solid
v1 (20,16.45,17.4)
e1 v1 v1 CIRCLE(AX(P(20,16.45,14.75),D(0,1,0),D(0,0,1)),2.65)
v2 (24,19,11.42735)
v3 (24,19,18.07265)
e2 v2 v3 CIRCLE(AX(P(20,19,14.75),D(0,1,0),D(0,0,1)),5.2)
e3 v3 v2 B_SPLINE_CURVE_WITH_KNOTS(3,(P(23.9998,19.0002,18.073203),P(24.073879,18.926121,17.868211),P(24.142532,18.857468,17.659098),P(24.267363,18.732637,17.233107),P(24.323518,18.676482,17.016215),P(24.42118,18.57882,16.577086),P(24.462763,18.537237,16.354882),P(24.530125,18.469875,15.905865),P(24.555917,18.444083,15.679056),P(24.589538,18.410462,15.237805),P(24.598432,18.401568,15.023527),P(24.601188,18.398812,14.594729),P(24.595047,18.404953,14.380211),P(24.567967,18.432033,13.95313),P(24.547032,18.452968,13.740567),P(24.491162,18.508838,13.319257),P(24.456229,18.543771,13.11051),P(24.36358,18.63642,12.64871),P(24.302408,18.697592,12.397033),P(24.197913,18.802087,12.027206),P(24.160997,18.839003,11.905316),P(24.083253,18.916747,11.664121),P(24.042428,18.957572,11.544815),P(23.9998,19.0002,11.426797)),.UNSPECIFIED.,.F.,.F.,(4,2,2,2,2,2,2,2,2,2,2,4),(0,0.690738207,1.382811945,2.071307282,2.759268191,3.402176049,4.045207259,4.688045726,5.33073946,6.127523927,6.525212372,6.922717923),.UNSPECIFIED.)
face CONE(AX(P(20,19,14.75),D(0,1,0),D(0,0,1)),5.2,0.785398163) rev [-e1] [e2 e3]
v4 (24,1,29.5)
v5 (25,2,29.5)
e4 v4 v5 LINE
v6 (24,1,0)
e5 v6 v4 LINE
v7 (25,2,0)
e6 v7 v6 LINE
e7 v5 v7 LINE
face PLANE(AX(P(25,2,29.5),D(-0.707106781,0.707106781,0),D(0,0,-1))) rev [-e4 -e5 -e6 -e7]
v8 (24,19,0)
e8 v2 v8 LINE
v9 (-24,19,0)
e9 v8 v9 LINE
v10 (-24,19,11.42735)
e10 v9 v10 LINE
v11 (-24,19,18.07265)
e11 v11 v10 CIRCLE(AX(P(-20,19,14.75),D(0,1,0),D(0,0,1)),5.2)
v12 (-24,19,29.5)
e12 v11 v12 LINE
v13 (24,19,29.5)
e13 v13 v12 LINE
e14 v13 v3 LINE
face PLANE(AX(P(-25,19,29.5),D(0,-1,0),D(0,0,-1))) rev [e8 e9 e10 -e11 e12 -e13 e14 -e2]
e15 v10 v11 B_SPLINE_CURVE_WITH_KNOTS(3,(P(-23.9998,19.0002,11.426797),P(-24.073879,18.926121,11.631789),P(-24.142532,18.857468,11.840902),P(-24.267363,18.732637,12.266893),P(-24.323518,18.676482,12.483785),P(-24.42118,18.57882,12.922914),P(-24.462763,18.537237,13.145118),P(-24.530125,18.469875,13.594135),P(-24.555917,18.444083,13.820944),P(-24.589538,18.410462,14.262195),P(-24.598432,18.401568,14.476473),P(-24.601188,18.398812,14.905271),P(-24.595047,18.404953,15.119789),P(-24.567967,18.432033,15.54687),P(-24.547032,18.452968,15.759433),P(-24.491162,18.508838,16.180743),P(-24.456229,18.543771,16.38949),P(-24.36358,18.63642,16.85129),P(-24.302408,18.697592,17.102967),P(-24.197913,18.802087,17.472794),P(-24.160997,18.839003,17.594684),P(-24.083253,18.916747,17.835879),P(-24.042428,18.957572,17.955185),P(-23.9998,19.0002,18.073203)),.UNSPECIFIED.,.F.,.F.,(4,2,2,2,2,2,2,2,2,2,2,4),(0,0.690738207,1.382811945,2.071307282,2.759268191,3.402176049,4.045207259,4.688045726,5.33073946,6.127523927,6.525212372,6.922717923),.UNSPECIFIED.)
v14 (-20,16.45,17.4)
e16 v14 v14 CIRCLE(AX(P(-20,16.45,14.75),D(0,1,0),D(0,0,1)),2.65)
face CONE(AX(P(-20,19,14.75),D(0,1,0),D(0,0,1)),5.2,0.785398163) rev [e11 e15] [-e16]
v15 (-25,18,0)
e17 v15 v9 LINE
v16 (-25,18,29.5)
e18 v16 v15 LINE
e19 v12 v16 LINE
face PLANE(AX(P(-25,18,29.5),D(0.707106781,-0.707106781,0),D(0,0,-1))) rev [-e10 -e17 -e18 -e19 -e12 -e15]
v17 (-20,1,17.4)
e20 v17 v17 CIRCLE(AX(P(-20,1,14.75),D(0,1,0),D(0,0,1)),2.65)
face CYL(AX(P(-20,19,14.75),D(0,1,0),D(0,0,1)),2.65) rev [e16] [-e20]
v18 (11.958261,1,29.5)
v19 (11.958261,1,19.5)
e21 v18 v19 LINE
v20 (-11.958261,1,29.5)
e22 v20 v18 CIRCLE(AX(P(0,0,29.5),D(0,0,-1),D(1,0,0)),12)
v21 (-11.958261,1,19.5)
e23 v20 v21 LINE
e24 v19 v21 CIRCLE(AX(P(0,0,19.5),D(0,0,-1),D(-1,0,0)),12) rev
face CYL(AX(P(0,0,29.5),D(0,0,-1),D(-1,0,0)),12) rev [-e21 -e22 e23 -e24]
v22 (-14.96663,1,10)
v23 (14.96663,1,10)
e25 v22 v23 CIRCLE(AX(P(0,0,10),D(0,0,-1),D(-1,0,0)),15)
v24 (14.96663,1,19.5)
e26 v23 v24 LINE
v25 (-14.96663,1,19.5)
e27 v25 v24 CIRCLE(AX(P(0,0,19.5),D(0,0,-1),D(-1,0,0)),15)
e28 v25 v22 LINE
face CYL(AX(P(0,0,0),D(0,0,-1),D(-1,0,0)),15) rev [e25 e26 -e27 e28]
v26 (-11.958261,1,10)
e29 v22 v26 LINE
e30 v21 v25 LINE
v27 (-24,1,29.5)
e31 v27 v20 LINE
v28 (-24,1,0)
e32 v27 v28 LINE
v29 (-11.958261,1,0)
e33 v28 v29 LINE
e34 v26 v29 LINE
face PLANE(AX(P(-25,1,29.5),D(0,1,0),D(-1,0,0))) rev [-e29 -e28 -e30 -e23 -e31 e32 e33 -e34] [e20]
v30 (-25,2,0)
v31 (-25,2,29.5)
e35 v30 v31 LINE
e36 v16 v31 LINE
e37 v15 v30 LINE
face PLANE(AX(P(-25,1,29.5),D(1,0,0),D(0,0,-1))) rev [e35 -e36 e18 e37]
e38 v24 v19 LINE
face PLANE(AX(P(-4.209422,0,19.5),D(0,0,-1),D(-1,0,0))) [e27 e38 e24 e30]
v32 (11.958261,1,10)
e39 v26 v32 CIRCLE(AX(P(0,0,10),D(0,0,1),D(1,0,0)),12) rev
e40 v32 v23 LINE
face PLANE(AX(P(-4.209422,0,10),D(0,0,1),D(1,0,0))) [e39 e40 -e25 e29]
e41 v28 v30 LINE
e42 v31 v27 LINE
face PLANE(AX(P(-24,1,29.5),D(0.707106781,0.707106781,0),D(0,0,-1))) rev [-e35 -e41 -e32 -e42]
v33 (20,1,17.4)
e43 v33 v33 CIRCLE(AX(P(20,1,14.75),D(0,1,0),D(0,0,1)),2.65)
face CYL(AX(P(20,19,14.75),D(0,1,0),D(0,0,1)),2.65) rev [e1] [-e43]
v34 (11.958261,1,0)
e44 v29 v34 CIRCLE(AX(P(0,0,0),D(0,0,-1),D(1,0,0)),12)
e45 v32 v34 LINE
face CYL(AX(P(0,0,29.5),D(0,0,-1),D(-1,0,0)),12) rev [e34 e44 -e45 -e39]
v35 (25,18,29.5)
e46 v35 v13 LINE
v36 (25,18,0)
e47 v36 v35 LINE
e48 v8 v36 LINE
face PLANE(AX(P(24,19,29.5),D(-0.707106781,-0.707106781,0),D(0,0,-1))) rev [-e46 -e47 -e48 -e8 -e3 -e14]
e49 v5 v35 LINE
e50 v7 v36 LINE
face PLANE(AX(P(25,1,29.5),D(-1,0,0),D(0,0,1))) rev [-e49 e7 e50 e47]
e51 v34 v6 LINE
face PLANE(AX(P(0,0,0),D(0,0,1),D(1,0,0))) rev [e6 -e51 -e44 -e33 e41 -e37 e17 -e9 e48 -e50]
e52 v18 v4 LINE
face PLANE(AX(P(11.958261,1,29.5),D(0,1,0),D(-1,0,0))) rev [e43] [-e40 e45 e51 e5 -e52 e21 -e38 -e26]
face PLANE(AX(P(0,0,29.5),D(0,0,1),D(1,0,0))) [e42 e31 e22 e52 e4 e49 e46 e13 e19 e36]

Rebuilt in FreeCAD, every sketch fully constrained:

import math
import FreeCAD as App
import Part
import Sketcher

V = App.Vector


def edges_at(feature, points):
    """Names of the edges that pass closest to the given points."""
    edges = feature.Shape.Edges
    near = lambda p: min(range(len(edges)), key=lambda i: edges[i].distToShape(Part.Vertex(*p))[0])
    return sorted({f"Edge{near(p) + 1}" for p in points})


def add_polygon(sketch, points):
    """Adds a closed chain of lines whose ends are joined by coincident constraints."""
    first, n = sketch.GeometryCount, len(points)
    for a, b in zip(points, points[1:] + points[:1]):
        sketch.addGeometry(Part.LineSegment(App.Vector(*a, 0), App.Vector(*b, 0)), False)
    for i in range(n):
        sketch.addConstraint(Sketcher.Constraint("Coincident", first + i, 2, first + (i + 1) % n, 1))

doc = App.newDocument("Part")
body = doc.addObject("PartDesign::Body", "Body")

sketch1 = doc.addObject("Sketcher::SketchObject", "Sketch")
body.addObject(sketch1)
sketch1.AttachmentSupport = (doc.XY_Plane, [""])
sketch1.MapMode = "FlatFace"
sketch1.addGeometry(Part.LineSegment(V(12, 1, 0), V(25, 1, 0)), False)
sketch1.addGeometry(Part.LineSegment(V(25, 1, 0), V(25, 19, 0)), False)
sketch1.addGeometry(Part.LineSegment(V(25, 19, 0), V(-25, 19, 0)), False)
sketch1.addGeometry(Part.LineSegment(V(-25, 19, 0), V(-25, 1, 0)), False)
sketch1.addGeometry(Part.LineSegment(V(-25, 1, 0), V(-12, 1, 0)), False)
sketch1.addGeometry(Part.ArcOfCircle(Part.Circle(V(0, 0, 0), V(0, 0, 1), 12), math.radians(5), math.radians(175)), False)
sketch1.addConstraint(Sketcher.Constraint("Coincident", 0, 2, 1, 1))
sketch1.addConstraint(Sketcher.Constraint("Coincident", 1, 2, 2, 1))
sketch1.addConstraint(Sketcher.Constraint("Coincident", 2, 2, 3, 1))
sketch1.addConstraint(Sketcher.Constraint("Coincident", 3, 2, 4, 1))
sketch1.addConstraint(Sketcher.Constraint("Coincident", 4, 2, 5, 2))
sketch1.addConstraint(Sketcher.Constraint("Coincident", 5, 1, 0, 1))
sketch1.addConstraint(Sketcher.Constraint("Horizontal", 0))
sketch1.addConstraint(Sketcher.Constraint("Vertical", 1))
sketch1.addConstraint(Sketcher.Constraint("Horizontal", 2))
sketch1.addConstraint(Sketcher.Constraint("Vertical", 3))
sketch1.addConstraint(Sketcher.Constraint("Horizontal", 4))
sketch1.addConstraint(Sketcher.Constraint("Coincident", 5, 3, -1, 1))
sketch1.addConstraint(Sketcher.Constraint("Symmetric", 0, 2, 3, 2, -2))
sketch1.addConstraint(Sketcher.Constraint("Radius", 5, 12.0))
sketch1.addConstraint(Sketcher.Constraint("DistanceX", 2, 2, 2, 1, 50.0))
sketch1.addConstraint(Sketcher.Constraint("DistanceY", 1, 1, 1, 2, 18.0))
sketch1.addConstraint(Sketcher.Constraint("DistanceY", -1, 1, 0, 2, 1.0))
pad1 = doc.addObject("PartDesign::Pad", "Pad")
body.addObject(pad1)
pad1.Profile = sketch1
pad1.Length = 29.5
doc.recompute()

chamfer = doc.addObject("PartDesign::Chamfer", "Chamfer")
body.addObject(chamfer)
chamfer.Base = (pad1, edges_at(pad1, [
    (-25, 19, 14.75),
    (25, 19, 14.75),
    (25, 1, 14.75),
    (-25, 1, 14.75),
]))
chamfer.Size = 1

sketch2 = doc.addObject("Sketcher::SketchObject", "Sketch001")
body.addObject(sketch2)
sketch2.AttachmentSupport = (doc.XZ_Plane, [""])
sketch2.MapMode = "FlatFace"
add_polygon(sketch2, [(-4, 10), (-4, 20), (-15, 20), (-15, 10)])
sketch2.addConstraint(Sketcher.Constraint("Vertical", 0))
sketch2.addConstraint(Sketcher.Constraint("Horizontal", 1))
sketch2.addConstraint(Sketcher.Constraint("Vertical", 2))
sketch2.addConstraint(Sketcher.Constraint("Horizontal", 3))
sketch2.addConstraint(Sketcher.Constraint("DistanceY", 0, 1, 0, 2, 9.5))
sketch2.addConstraint(Sketcher.Constraint("DistanceX", 1, 2, -1, 1, 15.0))
sketch2.addConstraint(Sketcher.Constraint("DistanceY", -1, 1, 2, 2, 10.0))
sketch2.addConstraint(Sketcher.Constraint("DistanceX", 1, 2, 1, 1, 10.790578))
groove = doc.addObject("PartDesign::Groove", "Groove")
body.addObject(groove)
groove.Profile = sketch2
groove.ReferenceAxis = (sketch2, ["V_Axis"])
groove.Angle = 360

sketch3 = doc.addObject("Sketcher::SketchObject", "Sketch002")
body.addObject(sketch3)
sketch3.AttachmentSupport = (doc.XZ_Plane, [""])
sketch3.MapMode = "FlatFace"
sketch3.AttachmentOffset = App.Placement(V(0, 0, -19), App.Rotation())
sketch3.addGeometry(Part.Circle(V(-20, 14.8, 0), V(0, 0, 1), 2.6), False)
sketch3.addGeometry(Part.Circle(V(20, 14.8, 0), V(0, 0, 1), 2.6), False)
sketch3.addConstraint(Sketcher.Constraint("Equal", 0, 1))
sketch3.addConstraint(Sketcher.Constraint("Symmetric", 0, 3, 1, 3, -2))
sketch3.addConstraint(Sketcher.Constraint("Diameter", 0, 5.3))
sketch3.addConstraint(Sketcher.Constraint("DistanceX", 0, 3, -1, 1, 20.0))
sketch3.addConstraint(Sketcher.Constraint("DistanceY", -1, 1, 0, 3, 14.75))
doc.recompute()
hole = doc.addObject("PartDesign::Hole", "Hole")
body.addObject(hole)
hole.Profile = sketch3
hole.ThreadType = "None"
hole.Diameter = 5.3
hole.DepthType = "ThroughAll"
hole.HoleCutType = "Countersink"
hole.HoleCutDiameter = 10.4
hole.HoleCutCountersinkAngle = 90
hole.Reversed = True

doc.recompute()
